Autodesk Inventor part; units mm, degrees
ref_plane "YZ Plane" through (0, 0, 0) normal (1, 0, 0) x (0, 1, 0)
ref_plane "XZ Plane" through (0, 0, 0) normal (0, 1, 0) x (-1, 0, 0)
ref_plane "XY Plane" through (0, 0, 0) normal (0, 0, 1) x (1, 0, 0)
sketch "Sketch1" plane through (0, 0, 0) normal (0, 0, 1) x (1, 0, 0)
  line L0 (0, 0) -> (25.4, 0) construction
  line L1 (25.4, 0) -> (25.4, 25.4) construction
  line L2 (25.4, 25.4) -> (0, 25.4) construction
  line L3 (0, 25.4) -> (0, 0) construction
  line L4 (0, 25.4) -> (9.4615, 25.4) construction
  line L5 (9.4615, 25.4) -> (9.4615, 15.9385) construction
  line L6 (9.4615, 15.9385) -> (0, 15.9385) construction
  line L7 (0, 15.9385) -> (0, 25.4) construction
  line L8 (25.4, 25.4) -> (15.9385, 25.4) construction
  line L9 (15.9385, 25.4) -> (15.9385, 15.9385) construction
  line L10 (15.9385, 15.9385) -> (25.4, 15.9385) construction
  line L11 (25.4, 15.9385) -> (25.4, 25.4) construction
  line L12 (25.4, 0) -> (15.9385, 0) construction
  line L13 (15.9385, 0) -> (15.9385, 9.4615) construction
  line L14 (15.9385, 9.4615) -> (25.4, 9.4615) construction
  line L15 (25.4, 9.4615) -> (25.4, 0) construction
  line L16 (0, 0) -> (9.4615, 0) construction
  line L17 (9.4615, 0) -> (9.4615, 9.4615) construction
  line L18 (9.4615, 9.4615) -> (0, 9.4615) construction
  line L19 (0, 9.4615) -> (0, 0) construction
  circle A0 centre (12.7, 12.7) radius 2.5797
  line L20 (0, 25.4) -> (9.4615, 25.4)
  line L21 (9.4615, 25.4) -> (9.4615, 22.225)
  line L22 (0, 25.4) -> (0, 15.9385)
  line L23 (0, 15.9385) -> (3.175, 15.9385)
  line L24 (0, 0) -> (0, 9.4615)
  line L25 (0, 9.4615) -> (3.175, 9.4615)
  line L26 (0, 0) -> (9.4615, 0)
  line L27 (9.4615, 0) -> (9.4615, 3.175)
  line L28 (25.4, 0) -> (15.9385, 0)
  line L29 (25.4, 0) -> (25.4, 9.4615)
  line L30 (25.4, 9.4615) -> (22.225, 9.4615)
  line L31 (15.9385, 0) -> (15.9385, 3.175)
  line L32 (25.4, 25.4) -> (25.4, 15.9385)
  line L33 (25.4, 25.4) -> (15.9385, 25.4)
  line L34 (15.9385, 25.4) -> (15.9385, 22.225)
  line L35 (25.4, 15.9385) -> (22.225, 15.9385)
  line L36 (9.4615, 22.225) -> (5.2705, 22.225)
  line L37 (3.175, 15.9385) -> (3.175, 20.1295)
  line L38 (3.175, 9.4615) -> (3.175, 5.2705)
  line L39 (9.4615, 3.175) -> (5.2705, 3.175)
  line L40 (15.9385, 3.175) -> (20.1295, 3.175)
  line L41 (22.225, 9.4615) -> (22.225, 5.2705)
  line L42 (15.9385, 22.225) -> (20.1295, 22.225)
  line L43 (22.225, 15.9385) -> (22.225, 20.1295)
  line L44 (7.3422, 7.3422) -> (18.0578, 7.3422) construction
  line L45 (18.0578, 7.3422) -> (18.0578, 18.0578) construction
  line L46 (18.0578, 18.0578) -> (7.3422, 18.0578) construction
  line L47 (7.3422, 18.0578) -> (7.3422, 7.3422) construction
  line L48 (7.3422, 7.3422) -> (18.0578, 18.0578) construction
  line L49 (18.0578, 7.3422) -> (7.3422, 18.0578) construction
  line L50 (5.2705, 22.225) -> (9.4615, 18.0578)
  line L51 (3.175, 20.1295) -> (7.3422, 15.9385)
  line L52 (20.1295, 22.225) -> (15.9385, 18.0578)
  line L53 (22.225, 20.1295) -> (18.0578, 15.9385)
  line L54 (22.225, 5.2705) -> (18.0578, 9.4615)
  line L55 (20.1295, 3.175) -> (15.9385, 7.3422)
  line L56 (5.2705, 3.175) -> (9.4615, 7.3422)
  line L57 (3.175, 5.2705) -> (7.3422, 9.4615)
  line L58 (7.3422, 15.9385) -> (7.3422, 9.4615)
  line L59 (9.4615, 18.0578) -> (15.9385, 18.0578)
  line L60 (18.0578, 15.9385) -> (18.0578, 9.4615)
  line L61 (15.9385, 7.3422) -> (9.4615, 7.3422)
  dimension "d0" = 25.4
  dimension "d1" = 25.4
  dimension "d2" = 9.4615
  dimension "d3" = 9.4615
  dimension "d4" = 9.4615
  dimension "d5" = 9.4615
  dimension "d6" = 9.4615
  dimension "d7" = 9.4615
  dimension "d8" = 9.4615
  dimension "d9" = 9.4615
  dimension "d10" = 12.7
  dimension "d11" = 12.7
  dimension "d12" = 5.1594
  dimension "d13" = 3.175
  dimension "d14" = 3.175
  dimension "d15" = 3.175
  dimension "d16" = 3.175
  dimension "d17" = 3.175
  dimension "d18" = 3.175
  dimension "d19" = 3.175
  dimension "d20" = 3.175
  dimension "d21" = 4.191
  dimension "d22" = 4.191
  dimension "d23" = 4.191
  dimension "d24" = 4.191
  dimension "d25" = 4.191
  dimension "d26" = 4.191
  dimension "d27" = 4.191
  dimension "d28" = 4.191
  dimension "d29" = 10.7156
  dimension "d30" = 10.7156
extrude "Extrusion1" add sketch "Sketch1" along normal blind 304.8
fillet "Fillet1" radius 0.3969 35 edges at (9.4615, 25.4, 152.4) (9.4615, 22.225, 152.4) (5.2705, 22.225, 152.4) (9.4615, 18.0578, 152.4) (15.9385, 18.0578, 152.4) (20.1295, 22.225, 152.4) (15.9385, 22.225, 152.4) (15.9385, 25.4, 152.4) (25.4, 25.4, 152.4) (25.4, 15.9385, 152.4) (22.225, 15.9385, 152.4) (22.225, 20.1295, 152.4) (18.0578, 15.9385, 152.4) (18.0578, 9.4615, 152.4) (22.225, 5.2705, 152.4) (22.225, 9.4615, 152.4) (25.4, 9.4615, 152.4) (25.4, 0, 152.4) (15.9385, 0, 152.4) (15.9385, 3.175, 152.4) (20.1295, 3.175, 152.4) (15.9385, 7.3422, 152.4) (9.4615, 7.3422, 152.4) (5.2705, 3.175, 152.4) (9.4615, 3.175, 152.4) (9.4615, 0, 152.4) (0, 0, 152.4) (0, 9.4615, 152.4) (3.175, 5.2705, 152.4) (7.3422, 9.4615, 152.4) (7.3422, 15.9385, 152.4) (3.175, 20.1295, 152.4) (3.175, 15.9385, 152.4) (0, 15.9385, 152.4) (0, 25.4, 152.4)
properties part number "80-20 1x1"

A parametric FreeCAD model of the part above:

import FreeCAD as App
import Part
import Sketcher
Q = App.Units.Quantity


def edges_at(feature, points):
    """Names of the edges that pass closest to the given points."""
    edges = feature.Shape.Edges
    near = lambda p: min(range(len(edges)), key=lambda i: edges[i].distToShape(Part.Vertex(*p))[0])
    return sorted({f"Edge{near(p) + 1}" for p in points})

doc = App.newDocument("Part")
body = doc.addObject("PartDesign::Body", "Body")

# Sketch on XY plane
sketch1 = doc.addObject("Sketcher::SketchObject", "Sketch")
body.addObject(sketch1)
sketch1.AttachmentSupport = (doc.XY_Plane, [""])
sketch1.MapMode = "FlatFace"
sketch1.addGeometry([
    Part.LineSegment(App.Vector(9.5, 25.4, 0), App.Vector(0, 25.4, 0)),  # 0
    Part.LineSegment(App.Vector(0, 25.4, 0), App.Vector(0, 15.9, 0)),  # 1
    Part.LineSegment(App.Vector(0, 15.9, 0), App.Vector(3.2, 15.9, 0)),  # 2
    Part.LineSegment(App.Vector(3.2, 15.9, 0), App.Vector(3.2, 20.1, 0)),  # 3
    Part.LineSegment(App.Vector(3.2, 20.1, 0), App.Vector(7.3, 15.9, 0)),  # 4
    Part.LineSegment(App.Vector(7.3, 15.9, 0), App.Vector(7.3, 9.5, 0)),  # 5
    Part.LineSegment(App.Vector(7.3, 9.5, 0), App.Vector(3.2, 5.3, 0)),  # 6
    Part.LineSegment(App.Vector(3.2, 5.3, 0), App.Vector(3.2, 9.5, 0)),  # 7
    Part.LineSegment(App.Vector(3.2, 9.5, 0), App.Vector(0, 9.5, 0)),  # 8
    Part.LineSegment(App.Vector(0, 9.5, 0), App.Vector(0, 0, 0)),  # 9
    Part.LineSegment(App.Vector(0, 0, 0), App.Vector(9.5, 0, 0)),  # 10
    Part.LineSegment(App.Vector(9.5, 0, 0), App.Vector(9.5, 3.2, 0)),  # 11
    Part.LineSegment(App.Vector(9.5, 3.2, 0), App.Vector(5.3, 3.2, 0)),  # 12
    Part.LineSegment(App.Vector(5.3, 3.2, 0), App.Vector(9.5, 7.3, 0)),  # 13
    Part.LineSegment(App.Vector(9.5, 7.3, 0), App.Vector(15.9, 7.3, 0)),  # 14
    Part.LineSegment(App.Vector(15.9, 7.3, 0), App.Vector(20.1, 3.2, 0)),  # 15
    Part.LineSegment(App.Vector(20.1, 3.2, 0), App.Vector(15.9, 3.2, 0)),  # 16
    Part.LineSegment(App.Vector(15.9, 3.2, 0), App.Vector(15.9, 0, 0)),  # 17
    Part.LineSegment(App.Vector(15.9, 0, 0), App.Vector(25.4, 0, 0)),  # 18
    Part.LineSegment(App.Vector(25.4, 0, 0), App.Vector(25.4, 9.5, 0)),  # 19
    Part.LineSegment(App.Vector(25.4, 9.5, 0), App.Vector(22.2, 9.5, 0)),  # 20
    Part.LineSegment(App.Vector(22.2, 9.5, 0), App.Vector(22.2, 5.3, 0)),  # 21
    Part.LineSegment(App.Vector(22.2, 5.3, 0), App.Vector(18.1, 9.5, 0)),  # 22
    Part.LineSegment(App.Vector(18.1, 9.5, 0), App.Vector(18.1, 15.9, 0)),  # 23
    Part.LineSegment(App.Vector(18.1, 15.9, 0), App.Vector(22.2, 20.1, 0)),  # 24
    Part.LineSegment(App.Vector(22.2, 20.1, 0), App.Vector(22.2, 15.9, 0)),  # 25
    Part.LineSegment(App.Vector(22.2, 15.9, 0), App.Vector(25.4, 15.9, 0)),  # 26
    Part.LineSegment(App.Vector(25.4, 15.9, 0), App.Vector(25.4, 25.4, 0)),  # 27
    Part.LineSegment(App.Vector(25.4, 25.4, 0), App.Vector(15.9, 25.4, 0)),  # 28
    Part.LineSegment(App.Vector(15.9, 25.4, 0), App.Vector(15.9, 22.2, 0)),  # 29
    Part.LineSegment(App.Vector(15.9, 22.2, 0), App.Vector(20.1, 22.2, 0)),  # 30
    Part.LineSegment(App.Vector(20.1, 22.2, 0), App.Vector(15.9, 18.1, 0)),  # 31
    Part.LineSegment(App.Vector(15.9, 18.1, 0), App.Vector(9.5, 18.1, 0)),  # 32
    Part.LineSegment(App.Vector(9.5, 18.1, 0), App.Vector(5.3, 22.2, 0)),  # 33
    Part.LineSegment(App.Vector(5.3, 22.2, 0), App.Vector(9.5, 22.2, 0)),  # 34
    Part.LineSegment(App.Vector(9.5, 22.2, 0), App.Vector(9.5, 25.4, 0)),  # 35
    Part.Circle(App.Vector(12.7, 12.7, 0), App.Vector(0, 0, 1), 2.6),  # 36
], False)
sketch1.addConstraint([
    Sketcher.Constraint("Coincident", 0, 2, 1, 1),
    Sketcher.Constraint("Coincident", 1, 2, 2, 1),
    Sketcher.Constraint("Coincident", 2, 2, 3, 1),
    Sketcher.Constraint("Coincident", 3, 2, 4, 1),
    Sketcher.Constraint("Coincident", 4, 2, 5, 1),
    Sketcher.Constraint("Coincident", 5, 2, 6, 1),
    Sketcher.Constraint("Coincident", 6, 2, 7, 1),
    Sketcher.Constraint("Coincident", 7, 2, 8, 1),
    Sketcher.Constraint("Coincident", 8, 2, 9, 1),
    Sketcher.Constraint("Coincident", 9, 2, 10, 1),
    Sketcher.Constraint("Coincident", 10, 2, 11, 1),
    Sketcher.Constraint("Coincident", 11, 2, 12, 1),
    Sketcher.Constraint("Coincident", 12, 2, 13, 1),
    Sketcher.Constraint("Coincident", 13, 2, 14, 1),
    Sketcher.Constraint("Coincident", 14, 2, 15, 1),
    Sketcher.Constraint("Coincident", 15, 2, 16, 1),
    Sketcher.Constraint("Coincident", 16, 2, 17, 1),
    Sketcher.Constraint("Coincident", 17, 2, 18, 1),
    Sketcher.Constraint("Coincident", 18, 2, 19, 1),
    Sketcher.Constraint("Coincident", 19, 2, 20, 1),
    Sketcher.Constraint("Coincident", 20, 2, 21, 1),
    Sketcher.Constraint("Coincident", 21, 2, 22, 1),
    Sketcher.Constraint("Coincident", 22, 2, 23, 1),
    Sketcher.Constraint("Coincident", 23, 2, 24, 1),
    Sketcher.Constraint("Coincident", 24, 2, 25, 1),
    Sketcher.Constraint("Coincident", 25, 2, 26, 1),
    Sketcher.Constraint("Coincident", 26, 2, 27, 1),
    Sketcher.Constraint("Coincident", 27, 2, 28, 1),
    Sketcher.Constraint("Coincident", 28, 2, 29, 1),
    Sketcher.Constraint("Coincident", 29, 2, 30, 1),
    Sketcher.Constraint("Coincident", 30, 2, 31, 1),
    Sketcher.Constraint("Coincident", 31, 2, 32, 1),
    Sketcher.Constraint("Coincident", 32, 2, 33, 1),
    Sketcher.Constraint("Coincident", 33, 2, 34, 1),
    Sketcher.Constraint("Coincident", 34, 2, 35, 1),
    Sketcher.Constraint("Coincident", 35, 2, 0, 1),
    Sketcher.Constraint("Horizontal", 0),
    Sketcher.Constraint("Vertical", 1),
    Sketcher.Constraint("Horizontal", 2),
    Sketcher.Constraint("Vertical", 3),
    Sketcher.Constraint("Vertical", 5),
    Sketcher.Constraint("Vertical", 7),
    Sketcher.Constraint("Horizontal", 8),
    Sketcher.Constraint("Vertical", 9),
    Sketcher.Constraint("Horizontal", 10),
    Sketcher.Constraint("Vertical", 11),
    Sketcher.Constraint("Horizontal", 12),
    Sketcher.Constraint("Horizontal", 14),
    Sketcher.Constraint("Horizontal", 16),
    Sketcher.Constraint("Vertical", 17),
    Sketcher.Constraint("Horizontal", 18),
    Sketcher.Constraint("Vertical", 19),
    Sketcher.Constraint("Horizontal", 20),
    Sketcher.Constraint("Vertical", 21),
    Sketcher.Constraint("Vertical", 23),
    Sketcher.Constraint("Vertical", 25),
    Sketcher.Constraint("Horizontal", 26),
    Sketcher.Constraint("Vertical", 27),
    Sketcher.Constraint("Horizontal", 28),
    Sketcher.Constraint("Vertical", 29),
    Sketcher.Constraint("Horizontal", 30),
    Sketcher.Constraint("Horizontal", 32),
    Sketcher.Constraint("Horizontal", 34),
    Sketcher.Constraint("Vertical", 35),
    Sketcher.Constraint("Coincident", 9, 2, -1, 1),
    Sketcher.Constraint("PointOnObject", 0, 2, -2),
    Sketcher.Constraint("PointOnObject", 17, 2, -1),
    Sketcher.Constraint("Perpendicular", 4, 13),
    Sketcher.Constraint("Perpendicular", 6, 15),
    Sketcher.Constraint("Perpendicular", 13, 22),
    Sketcher.Constraint("Perpendicular", 15, 24),
    Sketcher.Constraint("Perpendicular", 22, 31),
    Sketcher.Constraint("Perpendicular", 24, 33),
    Sketcher.Constraint("Horizontal", 2, 2, 4, 2),
    Sketcher.Constraint("Horizontal", 5, 2, 7, 2),
    Sketcher.Constraint("Horizontal", 12, 2, 15, 2),
    Sketcher.Constraint("Horizontal", 8, 2, 19, 2),
    Sketcher.Constraint("Horizontal", 6, 2, 21, 2),
    Sketcher.Constraint("Horizontal", 20, 2, 22, 2),
    Sketcher.Constraint("Horizontal", 4, 2, 23, 2),
    Sketcher.Constraint("Horizontal", 3, 2, 24, 2),
    Sketcher.Constraint("Horizontal", 23, 2, 25, 2),
    Sketcher.Constraint("Horizontal", 0, 2, 27, 2),
    Sketcher.Constraint("Horizontal", 30, 2, 33, 2),
    Sketcher.Constraint("Vertical", 3, 2, 6, 2),
    Sketcher.Constraint("Vertical", 11, 2, 13, 2),
    Sketcher.Constraint("Vertical", 14, 2, 16, 2),
    Sketcher.Constraint("Vertical", 21, 2, 24, 2),
    Sketcher.Constraint("Vertical", 19, 2, 26, 2),
    Sketcher.Constraint("Vertical", 17, 2, 28, 2),
    Sketcher.Constraint("Vertical", 15, 2, 30, 2),
    Sketcher.Constraint("Vertical", 29, 2, 31, 2),
    Sketcher.Constraint("Vertical", 13, 2, 32, 2),
    Sketcher.Constraint("Vertical", 32, 2, 34, 2),
    Sketcher.Constraint("Equal", 10, 18),
    Sketcher.Constraint("Equal", 8, 20),
    Sketcher.Constraint("Equal", 28, 1),
    Sketcher.Constraint("Equal", 34, 3),
    Sketcher.Constraint("Equal", 32, 5),
    Sketcher.Constraint("Equal", 1, 9),
    Sketcher.Constraint("Equal", 26, 11),
    Sketcher.Constraint("Equal", 17, 29),
    Sketcher.Constraint("Diameter", 36, Q("0.203126 in")),
    Sketcher.Constraint("DistanceY", -1, 1, 0, 2, Q("1 in")),
    Sketcher.Constraint("DistanceX", -1, 1, 36, 3, Q("0.5 in")),
    Sketcher.Constraint("DistanceY", -1, 1, 36, 3, Q("0.5 in")),
    Sketcher.Constraint("DistanceX", 2, 1, 2, 2, Q("0.125 in")),
    Sketcher.Constraint("DistanceX", 12, 2, 12, 1, Q("0.165 in")),
    Sketcher.Constraint("DistanceX", 0, 2, 0, 1, Q("0.3725 in")),
    Sketcher.Constraint("Distance", 4, Q("5.9102 mm")),
])
pad1 = doc.addObject("PartDesign::Pad", "Pad")
body.addObject(pad1)
pad1.Profile = sketch1
pad1.Length = Q("12 in")
doc.recompute()

fillet = doc.addObject("PartDesign::Fillet", "Fillet")
body.addObject(fillet)
fillet.Base = (pad1, edges_at(pad1, [
    (9.461, 25.4, 152.4),
    (9.461, 22.225, 152.4),
    (5.271, 22.225, 152.4),
    (9.461, 18.058, 152.4),
    (15.938, 18.058, 152.4),
    (20.13, 22.225, 152.4),
    (15.938, 22.225, 152.4),
    (15.938, 25.4, 152.4),
    (25.4, 25.4, 152.4),
    (25.4, 15.938, 152.4),
    (22.225, 15.938, 152.4),
    (22.225, 20.13, 152.4),
    (18.058, 15.938, 152.4),
    (18.058, 9.461, 152.4),
    (22.225, 5.271, 152.4),
    (22.225, 9.461, 152.4),
    (25.4, 9.461, 152.4),
    (25.4, 0, 152.4),
    (15.938, 0, 152.4),
    (15.938, 3.175, 152.4),
    (20.13, 3.175, 152.4),
    (15.938, 7.342, 152.4),
    (9.461, 7.342, 152.4),
    (5.271, 3.175, 152.4),
    (9.461, 3.175, 152.4),
    (9.461, 0, 152.4),
    (0, 0, 152.4),
    (0, 9.461, 152.4),
    (3.175, 5.271, 152.4),
    (7.342, 9.461, 152.4),
    (7.342, 15.938, 152.4),
    (3.175, 20.13, 152.4),
    (3.175, 15.938, 152.4),
    (0, 15.938, 152.4),
    (0, 25.4, 152.4),
]))
fillet.Radius = Q("0.015626 in")

doc.recompute()
